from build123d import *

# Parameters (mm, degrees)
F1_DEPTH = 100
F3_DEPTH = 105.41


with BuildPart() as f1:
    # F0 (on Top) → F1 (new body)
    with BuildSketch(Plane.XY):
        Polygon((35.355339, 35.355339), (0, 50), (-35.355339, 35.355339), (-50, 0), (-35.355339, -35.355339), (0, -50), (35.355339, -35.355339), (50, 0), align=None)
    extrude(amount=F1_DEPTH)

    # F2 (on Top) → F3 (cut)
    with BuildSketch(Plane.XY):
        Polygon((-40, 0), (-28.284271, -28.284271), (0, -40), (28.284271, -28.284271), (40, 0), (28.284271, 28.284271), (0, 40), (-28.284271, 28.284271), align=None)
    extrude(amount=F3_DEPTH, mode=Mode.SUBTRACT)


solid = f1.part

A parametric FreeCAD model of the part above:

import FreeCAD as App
import Part
import Sketcher

V = App.Vector
Q = App.Units.Quantity

doc = App.newDocument("Part")
params = doc.addObject("Spreadsheet::Sheet", "Params")
for row, (alias, value) in enumerate([
    ("pad1_length", "100 mm"),
    ("pocket1_length", "105.41 mm"),
], start=1):
    params.set(f"A{row}", alias)
    params.set(f"B{row}", "=" + value)
    params.setAlias(f"B{row}", alias)

body = doc.addObject("PartDesign::Body", "Body")

sketch1 = body.newObject("Sketcher::SketchObject", "Sketch")
sketch1.AttachmentSupport = (doc.getObject("XY_Plane"), [""])
sketch1.MapMode = "FlatFace"
sketch1.addGeometry(Part.LineSegment(V(35, 35, 0), V(0, 50, 0)), False)
sketch1.addGeometry(Part.LineSegment(V(0, 50, 0), V(-35, 35, 0)), False)
sketch1.addGeometry(Part.LineSegment(V(-35, 35, 0), V(-50, 0, 0)), False)
sketch1.addGeometry(Part.LineSegment(V(-50, 0, 0), V(-35, -35, 0)), False)
sketch1.addGeometry(Part.LineSegment(V(-35, -35, 0), V(0, -50, 0)), False)
sketch1.addGeometry(Part.LineSegment(V(0, -50, 0), V(35, -35, 0)), False)
sketch1.addGeometry(Part.LineSegment(V(35, -35, 0), V(50, 0, 0)), False)
sketch1.addGeometry(Part.LineSegment(V(50, 0, 0), V(35, 35, 0)), False)
sketch1.addConstraint(Sketcher.Constraint("Coincident", 0, 2, 1, 1))
sketch1.addConstraint(Sketcher.Constraint("Coincident", 1, 2, 2, 1))
sketch1.addConstraint(Sketcher.Constraint("Coincident", 2, 2, 3, 1))
sketch1.addConstraint(Sketcher.Constraint("Coincident", 3, 2, 4, 1))
sketch1.addConstraint(Sketcher.Constraint("Coincident", 4, 2, 5, 1))
sketch1.addConstraint(Sketcher.Constraint("Coincident", 5, 2, 6, 1))
sketch1.addConstraint(Sketcher.Constraint("Coincident", 6, 2, 7, 1))
sketch1.addConstraint(Sketcher.Constraint("Coincident", 7, 2, 0, 1))
sketch1.addConstraint(Sketcher.Constraint("Symmetric", 0, 2, 4, 2, -1, 1))
sketch1.addConstraint(Sketcher.Constraint("Symmetric", 1, 2, 5, 2, -1, 1))
sketch1.addConstraint(Sketcher.Constraint("Symmetric", 2, 2, 6, 2, -1, 1))
sketch1.addConstraint(Sketcher.Constraint("Symmetric", 3, 2, 7, 2, -1, 1))
sketch1.addConstraint(Sketcher.Constraint("Symmetric", 3, 2, 5, 2, -2))
sketch1.addConstraint(Sketcher.Constraint("PointOnObject", 0, 2, -2))
sketch1.addConstraint(Sketcher.Constraint("PointOnObject", 2, 2, -1))
sketch1.addConstraint(Sketcher.Constraint("Perpendicular", 0, 2))
sketch1.addConstraint(Sketcher.Constraint("Equal", 1, 2))
sketch1.addConstraint(Sketcher.Constraint("DistanceY", -1, 1, 0, 2, 50.0))
sketch1.addConstraint(Sketcher.Constraint("Angle", 0, Q("157.5 deg")))
pad1 = body.newObject("PartDesign::Pad", "Pad")
pad1.Profile = sketch1
pad1.setExpression("Length", "Params.pad1_length")

sketch2 = body.newObject("Sketcher::SketchObject", "Sketch001")
sketch2.AttachmentSupport = (doc.getObject("XY_Plane"), [""])
sketch2.MapMode = "FlatFace"
sketch2.addGeometry(Part.LineSegment(V(-40, 0, 0), V(-28, -28, 0)), False)
sketch2.addGeometry(Part.LineSegment(V(-28, -28, 0), V(0, -40, 0)), False)
sketch2.addGeometry(Part.LineSegment(V(0, -40, 0), V(28, -28, 0)), False)
sketch2.addGeometry(Part.LineSegment(V(28, -28, 0), V(40, 0, 0)), False)
sketch2.addGeometry(Part.LineSegment(V(40, 0, 0), V(28, 28, 0)), False)
sketch2.addGeometry(Part.LineSegment(V(28, 28, 0), V(0, 40, 0)), False)
sketch2.addGeometry(Part.LineSegment(V(0, 40, 0), V(-28, 28, 0)), False)
sketch2.addGeometry(Part.LineSegment(V(-28, 28, 0), V(-40, 0, 0)), False)
sketch2.addConstraint(Sketcher.Constraint("Coincident", 0, 2, 1, 1))
sketch2.addConstraint(Sketcher.Constraint("Coincident", 1, 2, 2, 1))
sketch2.addConstraint(Sketcher.Constraint("Coincident", 2, 2, 3, 1))
sketch2.addConstraint(Sketcher.Constraint("Coincident", 3, 2, 4, 1))
sketch2.addConstraint(Sketcher.Constraint("Coincident", 4, 2, 5, 1))
sketch2.addConstraint(Sketcher.Constraint("Coincident", 5, 2, 6, 1))
sketch2.addConstraint(Sketcher.Constraint("Coincident", 6, 2, 7, 1))
sketch2.addConstraint(Sketcher.Constraint("Coincident", 7, 2, 0, 1))
sketch2.addConstraint(Sketcher.Constraint("Symmetric", 0, 2, 4, 2, -1, 1))
sketch2.addConstraint(Sketcher.Constraint("Symmetric", 1, 2, 5, 2, -1, 1))
sketch2.addConstraint(Sketcher.Constraint("Symmetric", 2, 2, 6, 2, -1, 1))
sketch2.addConstraint(Sketcher.Constraint("Symmetric", 3, 2, 7, 2, -1, 1))
sketch2.addConstraint(Sketcher.Constraint("Symmetric", 0, 2, 2, 2, -2))
sketch2.addConstraint(Sketcher.Constraint("PointOnObject", 1, 2, -2))
sketch2.addConstraint(Sketcher.Constraint("PointOnObject", 3, 2, -1))
sketch2.addConstraint(Sketcher.Constraint("Perpendicular", 0, 2))
sketch2.addConstraint(Sketcher.Constraint("Equal", 0, 1))
sketch2.addConstraint(Sketcher.Constraint("DistanceY", 1, 2, -1, 1, 40.0))
sketch2.addConstraint(Sketcher.Constraint("Angle", 0, Q("-67.499999 deg")))
pocket1 = body.newObject("PartDesign::Pocket", "Pocket")
pocket1.Profile = sketch2
pocket1.setExpression("Length", "Params.pocket1_length")
pocket1.Reversed = True

doc.recompute()
